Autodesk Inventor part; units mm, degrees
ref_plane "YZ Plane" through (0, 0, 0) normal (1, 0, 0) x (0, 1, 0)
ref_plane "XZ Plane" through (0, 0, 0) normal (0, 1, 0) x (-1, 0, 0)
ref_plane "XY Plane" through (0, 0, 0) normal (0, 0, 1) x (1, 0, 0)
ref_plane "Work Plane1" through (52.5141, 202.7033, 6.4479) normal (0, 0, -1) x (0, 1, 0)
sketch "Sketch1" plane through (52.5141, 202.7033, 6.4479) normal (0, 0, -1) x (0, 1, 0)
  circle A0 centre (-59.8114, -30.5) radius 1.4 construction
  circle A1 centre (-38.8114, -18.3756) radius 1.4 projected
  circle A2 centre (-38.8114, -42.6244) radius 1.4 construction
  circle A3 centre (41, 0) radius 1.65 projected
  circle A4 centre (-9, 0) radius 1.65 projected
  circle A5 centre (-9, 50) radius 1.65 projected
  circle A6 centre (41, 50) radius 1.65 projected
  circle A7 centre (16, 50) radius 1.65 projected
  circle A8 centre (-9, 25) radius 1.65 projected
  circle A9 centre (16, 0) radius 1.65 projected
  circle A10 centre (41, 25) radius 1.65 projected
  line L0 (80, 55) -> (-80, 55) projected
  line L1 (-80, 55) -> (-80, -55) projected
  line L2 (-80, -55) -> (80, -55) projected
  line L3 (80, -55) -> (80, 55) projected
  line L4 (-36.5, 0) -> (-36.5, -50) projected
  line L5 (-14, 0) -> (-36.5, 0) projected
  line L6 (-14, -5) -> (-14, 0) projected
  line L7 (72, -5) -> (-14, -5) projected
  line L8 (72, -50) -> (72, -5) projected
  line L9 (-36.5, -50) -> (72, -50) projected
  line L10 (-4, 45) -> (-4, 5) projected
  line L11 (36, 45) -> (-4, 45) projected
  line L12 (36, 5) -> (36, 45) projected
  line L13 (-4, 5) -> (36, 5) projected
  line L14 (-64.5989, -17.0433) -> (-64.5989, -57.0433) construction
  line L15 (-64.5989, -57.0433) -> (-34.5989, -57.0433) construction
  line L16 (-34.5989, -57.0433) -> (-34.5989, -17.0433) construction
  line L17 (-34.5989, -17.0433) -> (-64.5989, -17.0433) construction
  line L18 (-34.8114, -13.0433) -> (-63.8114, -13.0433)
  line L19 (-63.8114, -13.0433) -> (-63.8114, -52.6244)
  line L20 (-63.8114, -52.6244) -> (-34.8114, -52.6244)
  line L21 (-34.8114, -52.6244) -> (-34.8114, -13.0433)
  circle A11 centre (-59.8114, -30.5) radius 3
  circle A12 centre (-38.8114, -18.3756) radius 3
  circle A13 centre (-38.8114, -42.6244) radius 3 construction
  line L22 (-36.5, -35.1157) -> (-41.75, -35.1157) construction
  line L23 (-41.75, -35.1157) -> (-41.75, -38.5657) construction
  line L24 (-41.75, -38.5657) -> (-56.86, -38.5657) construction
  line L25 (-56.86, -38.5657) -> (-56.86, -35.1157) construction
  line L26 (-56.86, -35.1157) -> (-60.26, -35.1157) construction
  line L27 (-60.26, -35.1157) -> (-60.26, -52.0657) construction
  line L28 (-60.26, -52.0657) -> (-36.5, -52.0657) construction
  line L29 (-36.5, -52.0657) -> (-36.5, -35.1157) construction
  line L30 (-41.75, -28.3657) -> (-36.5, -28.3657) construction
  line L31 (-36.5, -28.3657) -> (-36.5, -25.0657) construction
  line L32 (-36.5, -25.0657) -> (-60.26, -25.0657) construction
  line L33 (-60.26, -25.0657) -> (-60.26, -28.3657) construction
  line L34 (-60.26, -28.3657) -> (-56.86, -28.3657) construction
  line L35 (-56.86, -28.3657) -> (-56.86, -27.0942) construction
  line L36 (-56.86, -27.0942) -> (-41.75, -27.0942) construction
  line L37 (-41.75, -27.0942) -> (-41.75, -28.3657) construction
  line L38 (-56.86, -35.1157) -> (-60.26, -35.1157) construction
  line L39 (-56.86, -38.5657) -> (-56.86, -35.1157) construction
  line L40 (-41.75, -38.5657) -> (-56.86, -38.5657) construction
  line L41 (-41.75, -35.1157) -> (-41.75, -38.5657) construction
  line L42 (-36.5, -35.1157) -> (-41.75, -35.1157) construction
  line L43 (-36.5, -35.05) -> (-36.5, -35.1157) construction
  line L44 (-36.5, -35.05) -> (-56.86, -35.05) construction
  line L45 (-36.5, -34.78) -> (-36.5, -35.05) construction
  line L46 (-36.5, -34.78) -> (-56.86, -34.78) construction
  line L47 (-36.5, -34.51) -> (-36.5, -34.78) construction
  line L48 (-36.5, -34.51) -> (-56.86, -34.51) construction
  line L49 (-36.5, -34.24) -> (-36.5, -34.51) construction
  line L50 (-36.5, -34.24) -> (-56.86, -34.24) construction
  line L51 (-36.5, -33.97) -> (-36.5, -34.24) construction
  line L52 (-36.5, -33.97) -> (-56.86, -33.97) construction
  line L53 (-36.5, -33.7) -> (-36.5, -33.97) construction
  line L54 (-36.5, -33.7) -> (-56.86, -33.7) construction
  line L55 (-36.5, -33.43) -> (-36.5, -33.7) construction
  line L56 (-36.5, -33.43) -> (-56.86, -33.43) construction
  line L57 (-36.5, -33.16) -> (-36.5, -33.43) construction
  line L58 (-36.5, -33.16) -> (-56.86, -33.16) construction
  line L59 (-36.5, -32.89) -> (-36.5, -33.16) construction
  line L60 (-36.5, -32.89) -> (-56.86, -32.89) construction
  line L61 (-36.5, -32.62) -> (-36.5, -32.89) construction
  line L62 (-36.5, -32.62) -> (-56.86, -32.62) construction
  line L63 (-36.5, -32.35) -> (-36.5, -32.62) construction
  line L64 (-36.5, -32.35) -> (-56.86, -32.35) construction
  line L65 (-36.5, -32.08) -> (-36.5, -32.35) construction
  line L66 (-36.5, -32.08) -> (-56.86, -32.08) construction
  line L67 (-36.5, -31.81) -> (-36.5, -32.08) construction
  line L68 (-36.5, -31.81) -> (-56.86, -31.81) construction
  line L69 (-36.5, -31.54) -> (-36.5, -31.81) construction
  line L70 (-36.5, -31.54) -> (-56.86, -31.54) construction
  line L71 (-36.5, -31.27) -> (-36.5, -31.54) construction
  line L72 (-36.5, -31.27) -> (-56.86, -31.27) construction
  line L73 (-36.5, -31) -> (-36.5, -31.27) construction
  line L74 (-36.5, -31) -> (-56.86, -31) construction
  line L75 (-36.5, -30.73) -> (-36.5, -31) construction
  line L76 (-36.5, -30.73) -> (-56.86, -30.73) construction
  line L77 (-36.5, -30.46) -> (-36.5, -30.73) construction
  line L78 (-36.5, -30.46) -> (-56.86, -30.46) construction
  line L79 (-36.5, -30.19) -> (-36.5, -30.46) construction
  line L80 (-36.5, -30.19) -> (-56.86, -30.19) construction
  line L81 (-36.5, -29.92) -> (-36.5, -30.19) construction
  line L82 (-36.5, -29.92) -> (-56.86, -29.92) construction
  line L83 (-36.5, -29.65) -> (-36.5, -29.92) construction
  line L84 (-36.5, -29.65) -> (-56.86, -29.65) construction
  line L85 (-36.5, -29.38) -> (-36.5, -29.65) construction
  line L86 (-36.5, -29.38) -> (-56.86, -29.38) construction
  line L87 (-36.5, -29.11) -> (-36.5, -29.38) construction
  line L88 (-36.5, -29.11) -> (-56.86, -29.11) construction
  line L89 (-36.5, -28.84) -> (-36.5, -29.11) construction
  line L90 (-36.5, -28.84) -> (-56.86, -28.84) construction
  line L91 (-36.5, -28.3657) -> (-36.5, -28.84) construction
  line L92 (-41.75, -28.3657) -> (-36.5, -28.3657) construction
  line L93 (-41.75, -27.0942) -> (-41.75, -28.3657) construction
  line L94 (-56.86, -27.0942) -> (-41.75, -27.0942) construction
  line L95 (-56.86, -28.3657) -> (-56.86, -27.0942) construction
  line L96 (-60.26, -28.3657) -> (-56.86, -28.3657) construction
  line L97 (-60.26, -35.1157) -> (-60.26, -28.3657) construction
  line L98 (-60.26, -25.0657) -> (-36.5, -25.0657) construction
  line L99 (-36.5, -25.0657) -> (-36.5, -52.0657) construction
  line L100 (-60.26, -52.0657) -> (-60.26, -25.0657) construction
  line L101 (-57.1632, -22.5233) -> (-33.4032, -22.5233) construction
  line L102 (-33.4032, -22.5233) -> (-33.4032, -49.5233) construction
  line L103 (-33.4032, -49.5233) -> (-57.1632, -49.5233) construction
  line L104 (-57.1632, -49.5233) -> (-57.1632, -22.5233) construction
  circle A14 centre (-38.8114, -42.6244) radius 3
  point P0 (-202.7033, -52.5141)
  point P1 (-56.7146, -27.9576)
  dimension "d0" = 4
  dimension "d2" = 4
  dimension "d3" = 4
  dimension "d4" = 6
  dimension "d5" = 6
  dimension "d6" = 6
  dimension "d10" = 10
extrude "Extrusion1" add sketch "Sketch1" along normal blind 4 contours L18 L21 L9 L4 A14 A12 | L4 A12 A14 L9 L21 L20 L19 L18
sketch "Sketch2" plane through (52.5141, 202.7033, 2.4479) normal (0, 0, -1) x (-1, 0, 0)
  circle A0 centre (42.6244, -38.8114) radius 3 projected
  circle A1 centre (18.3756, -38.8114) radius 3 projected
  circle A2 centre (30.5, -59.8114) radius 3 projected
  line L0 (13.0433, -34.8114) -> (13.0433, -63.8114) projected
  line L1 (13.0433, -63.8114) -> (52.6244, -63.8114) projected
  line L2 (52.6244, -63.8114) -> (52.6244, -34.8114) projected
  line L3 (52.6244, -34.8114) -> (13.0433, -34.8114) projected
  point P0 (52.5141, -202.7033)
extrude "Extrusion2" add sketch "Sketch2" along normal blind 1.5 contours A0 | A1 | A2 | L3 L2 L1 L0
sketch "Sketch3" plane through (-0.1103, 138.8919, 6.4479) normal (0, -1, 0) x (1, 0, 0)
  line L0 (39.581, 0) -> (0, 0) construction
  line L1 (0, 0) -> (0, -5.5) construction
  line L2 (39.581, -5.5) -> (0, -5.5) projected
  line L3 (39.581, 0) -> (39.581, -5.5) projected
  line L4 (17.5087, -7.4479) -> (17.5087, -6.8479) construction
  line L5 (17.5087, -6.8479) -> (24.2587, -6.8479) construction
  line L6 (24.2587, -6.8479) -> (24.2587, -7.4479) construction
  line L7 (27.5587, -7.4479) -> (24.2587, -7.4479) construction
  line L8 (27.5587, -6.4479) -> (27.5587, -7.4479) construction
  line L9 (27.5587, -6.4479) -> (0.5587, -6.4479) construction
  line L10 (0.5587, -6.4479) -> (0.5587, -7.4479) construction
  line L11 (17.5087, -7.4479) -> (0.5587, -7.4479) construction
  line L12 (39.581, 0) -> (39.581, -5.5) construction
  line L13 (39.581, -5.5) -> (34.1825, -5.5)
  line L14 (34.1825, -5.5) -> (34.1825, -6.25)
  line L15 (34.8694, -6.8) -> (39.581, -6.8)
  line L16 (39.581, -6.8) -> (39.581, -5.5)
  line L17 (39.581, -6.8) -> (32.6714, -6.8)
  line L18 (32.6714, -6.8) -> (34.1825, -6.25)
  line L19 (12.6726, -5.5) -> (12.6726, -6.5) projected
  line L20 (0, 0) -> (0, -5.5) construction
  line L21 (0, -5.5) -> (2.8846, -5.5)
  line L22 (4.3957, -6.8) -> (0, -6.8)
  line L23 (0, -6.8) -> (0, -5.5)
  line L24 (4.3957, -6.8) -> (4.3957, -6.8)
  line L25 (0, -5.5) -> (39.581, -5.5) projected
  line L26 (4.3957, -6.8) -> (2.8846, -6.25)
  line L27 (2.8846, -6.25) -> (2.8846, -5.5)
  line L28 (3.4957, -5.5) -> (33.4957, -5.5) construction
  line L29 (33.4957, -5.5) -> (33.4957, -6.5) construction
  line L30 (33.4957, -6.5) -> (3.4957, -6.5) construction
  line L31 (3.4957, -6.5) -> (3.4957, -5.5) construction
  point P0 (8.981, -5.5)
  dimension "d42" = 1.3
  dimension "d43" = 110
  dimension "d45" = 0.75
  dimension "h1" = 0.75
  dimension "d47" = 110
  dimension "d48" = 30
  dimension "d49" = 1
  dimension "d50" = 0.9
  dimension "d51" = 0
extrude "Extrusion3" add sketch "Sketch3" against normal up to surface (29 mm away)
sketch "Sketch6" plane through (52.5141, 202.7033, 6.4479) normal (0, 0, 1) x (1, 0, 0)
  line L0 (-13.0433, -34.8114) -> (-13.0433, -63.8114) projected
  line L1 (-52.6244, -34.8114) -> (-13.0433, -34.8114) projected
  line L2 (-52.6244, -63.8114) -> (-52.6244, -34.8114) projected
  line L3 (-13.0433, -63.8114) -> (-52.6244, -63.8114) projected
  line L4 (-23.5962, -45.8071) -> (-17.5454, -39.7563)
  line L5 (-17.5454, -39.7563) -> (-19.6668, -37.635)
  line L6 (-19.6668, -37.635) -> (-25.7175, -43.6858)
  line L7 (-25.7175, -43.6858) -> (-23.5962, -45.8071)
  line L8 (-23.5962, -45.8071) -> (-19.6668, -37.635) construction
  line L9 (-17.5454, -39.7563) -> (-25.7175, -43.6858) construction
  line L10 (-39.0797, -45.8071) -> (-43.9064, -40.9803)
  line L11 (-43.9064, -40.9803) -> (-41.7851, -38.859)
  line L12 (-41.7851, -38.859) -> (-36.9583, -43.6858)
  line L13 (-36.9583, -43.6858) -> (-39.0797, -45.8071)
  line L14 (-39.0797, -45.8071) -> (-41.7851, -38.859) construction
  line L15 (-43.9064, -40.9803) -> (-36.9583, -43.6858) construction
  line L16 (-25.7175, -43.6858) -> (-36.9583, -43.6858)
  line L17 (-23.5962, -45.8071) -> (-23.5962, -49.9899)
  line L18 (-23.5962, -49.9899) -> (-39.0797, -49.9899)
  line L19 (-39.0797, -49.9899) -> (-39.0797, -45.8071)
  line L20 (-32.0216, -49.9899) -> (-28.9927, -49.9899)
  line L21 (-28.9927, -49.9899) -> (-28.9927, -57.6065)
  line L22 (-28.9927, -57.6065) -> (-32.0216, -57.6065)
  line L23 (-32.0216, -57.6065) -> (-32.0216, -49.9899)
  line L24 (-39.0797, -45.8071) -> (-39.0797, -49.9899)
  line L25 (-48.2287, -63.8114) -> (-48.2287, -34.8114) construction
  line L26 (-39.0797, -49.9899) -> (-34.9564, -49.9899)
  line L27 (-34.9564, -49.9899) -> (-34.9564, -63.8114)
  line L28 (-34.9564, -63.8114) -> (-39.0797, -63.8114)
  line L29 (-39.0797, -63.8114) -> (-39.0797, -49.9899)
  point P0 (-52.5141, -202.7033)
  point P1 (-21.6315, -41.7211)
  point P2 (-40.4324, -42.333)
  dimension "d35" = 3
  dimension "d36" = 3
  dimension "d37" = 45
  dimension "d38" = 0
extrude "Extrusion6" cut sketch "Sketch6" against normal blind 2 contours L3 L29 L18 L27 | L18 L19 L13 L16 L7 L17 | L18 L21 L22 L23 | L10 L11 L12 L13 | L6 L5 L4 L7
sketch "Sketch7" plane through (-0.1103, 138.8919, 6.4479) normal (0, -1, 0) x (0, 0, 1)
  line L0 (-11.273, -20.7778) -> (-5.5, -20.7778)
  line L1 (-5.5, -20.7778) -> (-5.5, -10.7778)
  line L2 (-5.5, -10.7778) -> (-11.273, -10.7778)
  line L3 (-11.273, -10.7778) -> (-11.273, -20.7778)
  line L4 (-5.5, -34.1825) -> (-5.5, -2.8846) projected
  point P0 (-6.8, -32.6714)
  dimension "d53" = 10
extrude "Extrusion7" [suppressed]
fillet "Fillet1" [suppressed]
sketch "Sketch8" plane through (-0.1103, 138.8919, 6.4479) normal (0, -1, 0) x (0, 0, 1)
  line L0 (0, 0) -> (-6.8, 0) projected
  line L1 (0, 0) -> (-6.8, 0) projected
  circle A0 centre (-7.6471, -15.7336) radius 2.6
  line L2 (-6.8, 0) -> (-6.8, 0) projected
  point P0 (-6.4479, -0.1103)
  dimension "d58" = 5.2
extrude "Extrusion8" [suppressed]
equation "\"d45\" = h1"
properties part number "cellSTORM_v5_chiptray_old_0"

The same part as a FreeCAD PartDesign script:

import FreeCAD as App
import Part
import Sketcher
from FreeCAD import Vector
Q = App.Units.Quantity


def add_polygon(sketch, points):
    """Adds a closed chain of lines whose ends are joined by coincident constraints."""
    first, n = sketch.GeometryCount, len(points)
    for a, b in zip(points, points[1:] + points[:1]):
        sketch.addGeometry(Part.LineSegment(App.Vector(*a, 0), App.Vector(*b, 0)), False)
    for i in range(n):
        sketch.addConstraint(Sketcher.Constraint("Coincident", first + i, 2, first + (i + 1) % n, 1))

doc = App.newDocument("Part")
body = doc.addObject("PartDesign::Body", "Body")

# Sketch on XY plane
sketch1 = body.newObject("Sketcher::SketchObject", "Sketch")
sketch1.AttachmentSupport = (doc.getObject("XY_Plane"), [""])
sketch1.MapMode = "FlatFace"
sketch1.AttachmentOffset = App.Placement(Vector(0, 0, 6.4479), App.Rotation())
add_polygon(sketch1, [(39.4708, 167.8919), (39.4708, 138.8919), (-0.1103, 138.8919), (-0.1103, 167.8919)])  # lines 0-3
sketch1.addGeometry(Part.Circle(Vector(9.8897, 163.8919, 0), Vector(0, 0, 1), 3), False)  # 4
sketch1.addGeometry(Part.Circle(Vector(34.1385, 163.8919, 0), Vector(0, 0, 1), 3), False)  # 5
sketch1.addGeometry(Part.Circle(Vector(22.0141, 142.8919, 0), Vector(0, 0, 1), 3), False)  # 6
sketch1.addConstraint([
    Sketcher.Constraint("Vertical", 0),
    Sketcher.Constraint("Horizontal", 1),
    Sketcher.Constraint("Vertical", 2),
    Sketcher.Constraint("Horizontal", 3),
    Sketcher.Constraint("Equal", 4, 5),
    Sketcher.Constraint("Equal", 5, 6),
    Sketcher.Constraint("Horizontal", 4, 3, 5, 3),
    Sketcher.Constraint("Diameter", 4, Q("6 mm")),
    Sketcher.Constraint("DistanceY", 0, 2, 6, 3, Q("4 mm")),
    Sketcher.Constraint("DistanceX", 1, 2, 4, 3, Q("10 mm")),
    Sketcher.Constraint("DistanceY", 4, 3, 2, 2, Q("4 mm")),
    Sketcher.Constraint("DistanceY", 0, 2, 0, 1, Q("29 mm")),
    Sketcher.Constraint("DistanceX", 1, 2, 1, 1, Q("39.581 mm")),
    Sketcher.Constraint("DistanceY", -1, 1, 4, 3, Q("163.892 mm")),
    Sketcher.Constraint("DistanceX", -1, 1, 6, 3, Q("22.014 mm")),
    Sketcher.Constraint("DistanceX", -1, 1, 4, 3, Q("9.8897 mm")),
    Sketcher.Constraint("DistanceX", -1, 1, 5, 3, Q("34.1385 mm")),
])
pad1 = body.newObject("PartDesign::Pad", "Pad")
pad1.Profile = sketch1
pad1.Length = 4
pad1.Reversed = True

# Sketch on XY plane
sketch2 = body.newObject("Sketcher::SketchObject", "Sketch001")
sketch2.AttachmentSupport = (doc.getObject("XY_Plane"), [""])
sketch2.MapMode = "FlatFace"
sketch2.AttachmentOffset = App.Placement(Vector(0, 0, 2.4479), App.Rotation())
add_polygon(sketch2, [(-0.1103, 167.8919), (39.4708, 167.8919), (39.4708, 138.8919), (-0.1103, 138.8919)])  # lines 0-3
sketch2.addConstraint([
    Sketcher.Constraint("Horizontal", 0),
    Sketcher.Constraint("Vertical", 1),
    Sketcher.Constraint("Horizontal", 2),
    Sketcher.Constraint("Vertical", 3),
    Sketcher.Constraint("DistanceY", 1, 2, 1, 1, Q("29 mm")),
    Sketcher.Constraint("DistanceX", 0, 1, 0, 2, Q("39.581 mm")),
    Sketcher.Constraint("DistanceY", -1, 1, 0, 2, Q("167.892 mm")),
    Sketcher.Constraint("DistanceX", -1, 1, 0, 2, Q("39.4708 mm")),
])
pad2 = body.newObject("PartDesign::Pad", "Pad001")
pad2.Profile = sketch2
pad2.Length = 1.5
pad2.Reversed = True

# Sketch on XZ plane
sketch3 = body.newObject("Sketcher::SketchObject", "Sketch002")
sketch3.AttachmentSupport = (doc.getObject("XZ_Plane"), [""])
sketch3.MapMode = "FlatFace"
sketch3.AttachmentOffset = App.Placement(Vector(0, 0, -138.8919), App.Rotation())
add_polygon(sketch3, [(39.4707, -0.3521), (39.4707, 0.9479), (34.0722, 0.9479), (34.0722, 0.1979), (32.5611, -0.3521)])  # lines 0-4
add_polygon(sketch3, [(2.7743, 0.1979), (2.7743, 0.9479), (-0.1103, 0.9479), (-0.1103, -0.3521), (4.2854, -0.3521)])  # lines 5-9
sketch3.addConstraint([
    Sketcher.Constraint("Vertical", 0),
    Sketcher.Constraint("Horizontal", 1),
    Sketcher.Constraint("Vertical", 2),
    Sketcher.Constraint("Horizontal", 4),
    Sketcher.Constraint("Vertical", 5),
    Sketcher.Constraint("Horizontal", 6),
    Sketcher.Constraint("Vertical", 7),
    Sketcher.Constraint("Horizontal", 8),
    Sketcher.Constraint("Horizontal", 1, 2, 5, 2),
    Sketcher.Constraint("Horizontal", 4, 2, 7, 2),
    Sketcher.Constraint("Horizontal", 2, 2, 9, 2),
    Sketcher.Constraint("Equal", 3, 9),
    Sketcher.Constraint("DistanceY", 0, 1, 0, 2, Q("1.3 mm")),
    Sketcher.Constraint("DistanceY", 2, 2, 2, 1, Q("0.75 mm")),
    Sketcher.Constraint("Angle", 3, Q("-159.9998 deg")),
    Sketcher.Constraint("DistanceX", 1, 2, 1, 1, Q("5.3985 mm")),
    Sketcher.Constraint("DistanceX", 6, 2, 6, 1, Q("2.8846 mm")),
    Sketcher.Constraint("DistanceY", -1, 1, 0, 2, Q("0.948 mm")),
    Sketcher.Constraint("DistanceX", -1, 1, 3, 2, Q("32.561 mm")),
    Sketcher.Constraint("DistanceX", 5, 2, 1, 2, Q("31.298 mm")),
])
pad3 = body.newObject("PartDesign::Pad", "Pad002")
pad3.Profile = sketch3
pad3.Length = 29
pad3.Reversed = True

# Sketch on XY plane
sketch4 = body.newObject("Sketcher::SketchObject", "Sketch003")
sketch4.AttachmentSupport = (doc.getObject("XY_Plane"), [""])
sketch4.MapMode = "FlatFace"
sketch4.AttachmentOffset = App.Placement(Vector(0, 0, 6.4479), App.Rotation())
add_polygon(sketch4, [(13.4344, 138.8919), (17.5577, 138.8919), (17.5577, 152.7134), (20.4925, 152.7134), (20.4925, 145.0968), (23.5214, 145.0968), (23.5214, 152.7134), (28.9179, 152.7134), (28.9179, 156.8962), (34.9687, 162.947), (32.8473, 165.0683), (26.7966, 159.0175), (15.5558, 159.0175), (10.729, 163.8443), (8.6077, 161.723), (13.4344, 156.8962)])  # lines 0-15
sketch4.addConstraint([
    Sketcher.Constraint("Horizontal", 0),
    Sketcher.Constraint("Vertical", 1),
    Sketcher.Constraint("Horizontal", 2),
    Sketcher.Constraint("Vertical", 3),
    Sketcher.Constraint("Horizontal", 4),
    Sketcher.Constraint("Vertical", 5),
    Sketcher.Constraint("Horizontal", 6),
    Sketcher.Constraint("Vertical", 7),
    Sketcher.Constraint("Horizontal", 11),
    Sketcher.Constraint("Vertical", 15),
    Sketcher.Constraint("Perpendicular", 8, 9),
    Sketcher.Constraint("Perpendicular", 9, 10),
    Sketcher.Constraint("Perpendicular", 10, 12),
    Sketcher.Constraint("Perpendicular", 12, 13),
    Sketcher.Constraint("Perpendicular", 13, 14),
    Sketcher.Constraint("Horizontal", 2, 2, 5, 2),
    Sketcher.Constraint("Horizontal", 7, 2, 14, 2),
    Sketcher.Constraint("Equal", 8, 10),
    Sketcher.Constraint("Equal", 9, 13),
    Sketcher.Constraint("Equal", 12, 14),
    Sketcher.Constraint("Distance", 9, Q("3 mm")),
    Sketcher.Constraint("DistanceX", 4, 1, 4, 2, Q("3.029 mm")),
    Sketcher.Constraint("DistanceX", 13, 2, 1, 2, Q("8.95 mm")),
    Sketcher.Constraint("Distance", 10, Q("8.557 mm")),
    Sketcher.Constraint("Distance", 14, Q("6.826 mm")),
    Sketcher.Constraint("DistanceX", 2, 1, 2, 2, Q("2.9348 mm")),
    Sketcher.Constraint("DistanceX", 6, 1, 6, 2, Q("5.3965 mm")),
    Sketcher.Constraint("DistanceY", 1, 1, 1, 2, Q("13.8215 mm")),
    Sketcher.Constraint("DistanceY", 3, 2, 3, 1, Q("7.6166 mm")),
    Sketcher.Constraint("DistanceY", 7, 1, 7, 2, Q("4.1828 mm")),
    Sketcher.Constraint("DistanceY", -1, 1, 0, 2, Q("138.892 mm")),
    Sketcher.Constraint("DistanceX", -1, 1, 6, 2, Q("28.918 mm")),
])
pocket1 = body.newObject("PartDesign::Pocket", "Pocket")
pocket1.Profile = sketch4
pocket1.Length = 2

doc.recompute()
